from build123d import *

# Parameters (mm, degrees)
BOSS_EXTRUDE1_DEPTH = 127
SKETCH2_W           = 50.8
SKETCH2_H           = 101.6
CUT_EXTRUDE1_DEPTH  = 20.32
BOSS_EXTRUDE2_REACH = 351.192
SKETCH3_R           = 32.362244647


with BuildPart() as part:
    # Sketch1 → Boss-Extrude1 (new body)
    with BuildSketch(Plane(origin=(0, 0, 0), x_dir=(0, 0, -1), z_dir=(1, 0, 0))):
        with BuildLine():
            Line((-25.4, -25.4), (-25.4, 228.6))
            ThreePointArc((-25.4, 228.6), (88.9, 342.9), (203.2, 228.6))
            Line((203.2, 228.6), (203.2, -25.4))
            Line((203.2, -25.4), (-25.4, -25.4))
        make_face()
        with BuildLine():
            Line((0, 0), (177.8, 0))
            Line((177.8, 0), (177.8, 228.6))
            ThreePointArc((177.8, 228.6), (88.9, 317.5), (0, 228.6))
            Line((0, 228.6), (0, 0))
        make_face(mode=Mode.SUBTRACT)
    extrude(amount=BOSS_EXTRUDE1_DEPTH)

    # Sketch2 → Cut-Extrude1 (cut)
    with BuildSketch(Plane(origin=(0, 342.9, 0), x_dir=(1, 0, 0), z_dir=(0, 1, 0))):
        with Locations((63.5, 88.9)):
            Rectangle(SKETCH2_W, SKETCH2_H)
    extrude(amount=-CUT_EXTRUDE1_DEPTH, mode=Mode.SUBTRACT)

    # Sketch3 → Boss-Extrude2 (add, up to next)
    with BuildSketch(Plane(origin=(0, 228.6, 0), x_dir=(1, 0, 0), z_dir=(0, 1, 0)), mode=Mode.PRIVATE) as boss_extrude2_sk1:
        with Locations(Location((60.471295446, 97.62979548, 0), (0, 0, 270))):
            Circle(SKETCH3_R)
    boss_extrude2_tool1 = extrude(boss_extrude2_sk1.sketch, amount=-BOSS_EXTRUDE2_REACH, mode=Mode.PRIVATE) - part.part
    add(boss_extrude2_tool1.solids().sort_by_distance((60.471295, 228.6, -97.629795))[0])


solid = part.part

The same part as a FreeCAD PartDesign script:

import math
import FreeCAD as App
import Part
import Sketcher
from FreeCAD import Vector
Q = App.Units.Quantity

doc = App.newDocument("Part")
params = doc.addObject("Spreadsheet::Sheet", "Params")
for row, (alias, value) in enumerate([
    ("sketch1_radius", "4.5 in"),
    ("sketch1_radius2", "3.5 in"),
    ("sketch1_width", "10 in"),
    ("pad1_length", "5 in"),
    ("sketch2_width", "2 in"),
    ("sketch2_height", "4 in"),
    ("pocket1_length", "0.8 in"),
], start=1):
    params.set(f"A{row}", alias)
    params.set(f"B{row}", "=" + value)
    params.setAlias(f"B{row}", alias)

body = doc.addObject("PartDesign::Body", "Body")

# Sketch on YZ plane
sketch1 = body.newObject("Sketcher::SketchObject", "Sketch")
sketch1.AttachmentSupport = (doc.getObject("YZ_Plane"), [""])
sketch1.MapMode = "FlatFace"
sketch1.addGeometry(Part.LineSegment(Vector(228.6, 25.4, 0), Vector(-25.4, 25.4, 0)), False)
sketch1.addGeometry(Part.LineSegment(Vector(-25.4, 25.4, 0), Vector(-25.4, -203.2, 0)), False)
sketch1.addGeometry(Part.LineSegment(Vector(-25.4, -203.2, 0), Vector(228.6, -203.2, 0)), False)
sketch1.addGeometry(Part.ArcOfCircle(Part.Circle(Vector(228.6, -88.9, 0), Vector(0, 0, 1), 114.3), math.radians(-90), math.radians(90)), False)
sketch1.addGeometry(Part.LineSegment(Vector(0, 0, 0), Vector(228.6, 0, 0)), False)
sketch1.addGeometry(Part.ArcOfCircle(Part.Circle(Vector(228.6, -88.9, 0), Vector(0, 0, 1), 88.9), math.radians(-90), math.radians(90)), False)
sketch1.addGeometry(Part.LineSegment(Vector(228.6, -177.8, 0), Vector(0, -177.8, 0)), False)
sketch1.addGeometry(Part.LineSegment(Vector(0, -177.8, 0), Vector(0, 0, 0)), False)
sketch1.addConstraint(Sketcher.Constraint("Coincident", 0, 2, 1, 1))
sketch1.addConstraint(Sketcher.Constraint("Coincident", 1, 2, 2, 1))
sketch1.addConstraint(Sketcher.Constraint("Tangent", 2, 2, 3, 1))
sketch1.addConstraint(Sketcher.Constraint("Tangent", 3, 2, 0, 1))
sketch1.addConstraint(Sketcher.Constraint("Tangent", 4, 2, 5, 2))
sketch1.addConstraint(Sketcher.Constraint("Tangent", 5, 1, 6, 1))
sketch1.addConstraint(Sketcher.Constraint("Coincident", 6, 2, 7, 1))
sketch1.addConstraint(Sketcher.Constraint("Coincident", 7, 2, 4, 1))
sketch1.addConstraint(Sketcher.Constraint("Horizontal", 0))
sketch1.addConstraint(Sketcher.Constraint("Vertical", 1))
sketch1.addConstraint(Sketcher.Constraint("Horizontal", 2))
sketch1.addConstraint(Sketcher.Constraint("Horizontal", 4))
sketch1.addConstraint(Sketcher.Constraint("Horizontal", 6))
sketch1.addConstraint(Sketcher.Constraint("Vertical", 7))
sketch1.addConstraint(Sketcher.Constraint("Coincident", 7, 2, -1, 1))
sketch1.addConstraint(Sketcher.Constraint("Coincident", 5, 3, 3, 3))
sketch1.addConstraint(Sketcher.Constraint("Equal", 6, 1))
sketch1.addConstraint(Sketcher.Constraint("Radius", 3, Q("4.5 in")))
sketch1.addConstraint(Sketcher.Constraint("Radius", 5, Q("3.5 in")))
sketch1.addConstraint(Sketcher.Constraint("DistanceX", 0, 2, 0, 1, Q("10 in")))
sketch1.setExpression("Constraints[17]", "Params.sketch1_radius")
sketch1.setExpression("Constraints[18]", "Params.sketch1_radius2")
sketch1.setExpression("Constraints[19]", "Params.sketch1_width")
pad1 = body.newObject("PartDesign::Pad", "Pad")
pad1.Profile = sketch1
pad1.setExpression("Length", "Params.pad1_length")

# Sketch on XZ plane
sketch2 = body.newObject("Sketcher::SketchObject", "Sketch001")
sketch2.AttachmentSupport = (doc.getObject("XZ_Plane"), [""])
sketch2.MapMode = "FlatFace"
sketch2.AttachmentOffset = App.Placement(Vector(0, 0, -13.5 * 25.4), App.Rotation())
sketch2.addGeometry(Part.LineSegment(Vector(38.1, -139.7, 0), Vector(38.1, -38.1, 0)), False)
sketch2.addGeometry(Part.LineSegment(Vector(38.1, -38.1, 0), Vector(88.9, -38.1, 0)), False)
sketch2.addGeometry(Part.LineSegment(Vector(88.9, -38.1, 0), Vector(88.9, -139.7, 0)), False)
sketch2.addGeometry(Part.LineSegment(Vector(88.9, -139.7, 0), Vector(38.1, -139.7, 0)), False)
sketch2.addConstraint(Sketcher.Constraint("Coincident", 0, 2, 1, 1))
sketch2.addConstraint(Sketcher.Constraint("Coincident", 1, 2, 2, 1))
sketch2.addConstraint(Sketcher.Constraint("Coincident", 2, 2, 3, 1))
sketch2.addConstraint(Sketcher.Constraint("Coincident", 3, 2, 0, 1))
sketch2.addConstraint(Sketcher.Constraint("Vertical", 0))
sketch2.addConstraint(Sketcher.Constraint("Horizontal", 1))
sketch2.addConstraint(Sketcher.Constraint("Vertical", 2))
sketch2.addConstraint(Sketcher.Constraint("Horizontal", 3))
sketch2.addConstraint(Sketcher.Constraint("DistanceX", 1, 1, 1, 2, Q("2 in")))
sketch2.addConstraint(Sketcher.Constraint("DistanceY", 0, 1, 0, 2, Q("4 in")))
sketch2.addConstraint(Sketcher.Constraint("DistanceX", -1, 1, 0, 2, Q("1.5 in")))
sketch2.addConstraint(Sketcher.Constraint("DistanceY", 0, 2, -1, 1, Q("1.5 in")))
sketch2.setExpression("Constraints[8]", "Params.sketch2_width")
sketch2.setExpression("Constraints[9]", "Params.sketch2_height")
pocket1 = body.newObject("PartDesign::Pocket", "Pocket")
pocket1.Profile = sketch2
pocket1.setExpression("Length", "Params.pocket1_length")
pocket1.Reversed = True

# Sketch on XZ plane
sketch3 = body.newObject("Sketcher::SketchObject", "Sketch002")
sketch3.AttachmentSupport = (doc.getObject("XZ_Plane"), [""])
sketch3.MapMode = "FlatFace"
sketch3.AttachmentOffset = App.Placement(Vector(0, 0, -9 * 25.4), App.Rotation())
sketch3.addGeometry(Part.Circle(Vector(60.471295, -97.629795, 0), Vector(0, 0, 1), 32.362245), False)
sketch3.addConstraint(Sketcher.Constraint("Diameter", 0, Q("64.724489 mm")))
sketch3.addConstraint(Sketcher.Constraint("DistanceX", -1, 1, 0, 3, Q("60.471295 mm")))
sketch3.addConstraint(Sketcher.Constraint("DistanceY", 0, 3, -1, 1, Q("97.629795 mm")))
pad2 = body.newObject("PartDesign::Pad", "Pad001")
pad2.Profile = sketch3
pad2.Type = "UpToFirst"

doc.recompute()
